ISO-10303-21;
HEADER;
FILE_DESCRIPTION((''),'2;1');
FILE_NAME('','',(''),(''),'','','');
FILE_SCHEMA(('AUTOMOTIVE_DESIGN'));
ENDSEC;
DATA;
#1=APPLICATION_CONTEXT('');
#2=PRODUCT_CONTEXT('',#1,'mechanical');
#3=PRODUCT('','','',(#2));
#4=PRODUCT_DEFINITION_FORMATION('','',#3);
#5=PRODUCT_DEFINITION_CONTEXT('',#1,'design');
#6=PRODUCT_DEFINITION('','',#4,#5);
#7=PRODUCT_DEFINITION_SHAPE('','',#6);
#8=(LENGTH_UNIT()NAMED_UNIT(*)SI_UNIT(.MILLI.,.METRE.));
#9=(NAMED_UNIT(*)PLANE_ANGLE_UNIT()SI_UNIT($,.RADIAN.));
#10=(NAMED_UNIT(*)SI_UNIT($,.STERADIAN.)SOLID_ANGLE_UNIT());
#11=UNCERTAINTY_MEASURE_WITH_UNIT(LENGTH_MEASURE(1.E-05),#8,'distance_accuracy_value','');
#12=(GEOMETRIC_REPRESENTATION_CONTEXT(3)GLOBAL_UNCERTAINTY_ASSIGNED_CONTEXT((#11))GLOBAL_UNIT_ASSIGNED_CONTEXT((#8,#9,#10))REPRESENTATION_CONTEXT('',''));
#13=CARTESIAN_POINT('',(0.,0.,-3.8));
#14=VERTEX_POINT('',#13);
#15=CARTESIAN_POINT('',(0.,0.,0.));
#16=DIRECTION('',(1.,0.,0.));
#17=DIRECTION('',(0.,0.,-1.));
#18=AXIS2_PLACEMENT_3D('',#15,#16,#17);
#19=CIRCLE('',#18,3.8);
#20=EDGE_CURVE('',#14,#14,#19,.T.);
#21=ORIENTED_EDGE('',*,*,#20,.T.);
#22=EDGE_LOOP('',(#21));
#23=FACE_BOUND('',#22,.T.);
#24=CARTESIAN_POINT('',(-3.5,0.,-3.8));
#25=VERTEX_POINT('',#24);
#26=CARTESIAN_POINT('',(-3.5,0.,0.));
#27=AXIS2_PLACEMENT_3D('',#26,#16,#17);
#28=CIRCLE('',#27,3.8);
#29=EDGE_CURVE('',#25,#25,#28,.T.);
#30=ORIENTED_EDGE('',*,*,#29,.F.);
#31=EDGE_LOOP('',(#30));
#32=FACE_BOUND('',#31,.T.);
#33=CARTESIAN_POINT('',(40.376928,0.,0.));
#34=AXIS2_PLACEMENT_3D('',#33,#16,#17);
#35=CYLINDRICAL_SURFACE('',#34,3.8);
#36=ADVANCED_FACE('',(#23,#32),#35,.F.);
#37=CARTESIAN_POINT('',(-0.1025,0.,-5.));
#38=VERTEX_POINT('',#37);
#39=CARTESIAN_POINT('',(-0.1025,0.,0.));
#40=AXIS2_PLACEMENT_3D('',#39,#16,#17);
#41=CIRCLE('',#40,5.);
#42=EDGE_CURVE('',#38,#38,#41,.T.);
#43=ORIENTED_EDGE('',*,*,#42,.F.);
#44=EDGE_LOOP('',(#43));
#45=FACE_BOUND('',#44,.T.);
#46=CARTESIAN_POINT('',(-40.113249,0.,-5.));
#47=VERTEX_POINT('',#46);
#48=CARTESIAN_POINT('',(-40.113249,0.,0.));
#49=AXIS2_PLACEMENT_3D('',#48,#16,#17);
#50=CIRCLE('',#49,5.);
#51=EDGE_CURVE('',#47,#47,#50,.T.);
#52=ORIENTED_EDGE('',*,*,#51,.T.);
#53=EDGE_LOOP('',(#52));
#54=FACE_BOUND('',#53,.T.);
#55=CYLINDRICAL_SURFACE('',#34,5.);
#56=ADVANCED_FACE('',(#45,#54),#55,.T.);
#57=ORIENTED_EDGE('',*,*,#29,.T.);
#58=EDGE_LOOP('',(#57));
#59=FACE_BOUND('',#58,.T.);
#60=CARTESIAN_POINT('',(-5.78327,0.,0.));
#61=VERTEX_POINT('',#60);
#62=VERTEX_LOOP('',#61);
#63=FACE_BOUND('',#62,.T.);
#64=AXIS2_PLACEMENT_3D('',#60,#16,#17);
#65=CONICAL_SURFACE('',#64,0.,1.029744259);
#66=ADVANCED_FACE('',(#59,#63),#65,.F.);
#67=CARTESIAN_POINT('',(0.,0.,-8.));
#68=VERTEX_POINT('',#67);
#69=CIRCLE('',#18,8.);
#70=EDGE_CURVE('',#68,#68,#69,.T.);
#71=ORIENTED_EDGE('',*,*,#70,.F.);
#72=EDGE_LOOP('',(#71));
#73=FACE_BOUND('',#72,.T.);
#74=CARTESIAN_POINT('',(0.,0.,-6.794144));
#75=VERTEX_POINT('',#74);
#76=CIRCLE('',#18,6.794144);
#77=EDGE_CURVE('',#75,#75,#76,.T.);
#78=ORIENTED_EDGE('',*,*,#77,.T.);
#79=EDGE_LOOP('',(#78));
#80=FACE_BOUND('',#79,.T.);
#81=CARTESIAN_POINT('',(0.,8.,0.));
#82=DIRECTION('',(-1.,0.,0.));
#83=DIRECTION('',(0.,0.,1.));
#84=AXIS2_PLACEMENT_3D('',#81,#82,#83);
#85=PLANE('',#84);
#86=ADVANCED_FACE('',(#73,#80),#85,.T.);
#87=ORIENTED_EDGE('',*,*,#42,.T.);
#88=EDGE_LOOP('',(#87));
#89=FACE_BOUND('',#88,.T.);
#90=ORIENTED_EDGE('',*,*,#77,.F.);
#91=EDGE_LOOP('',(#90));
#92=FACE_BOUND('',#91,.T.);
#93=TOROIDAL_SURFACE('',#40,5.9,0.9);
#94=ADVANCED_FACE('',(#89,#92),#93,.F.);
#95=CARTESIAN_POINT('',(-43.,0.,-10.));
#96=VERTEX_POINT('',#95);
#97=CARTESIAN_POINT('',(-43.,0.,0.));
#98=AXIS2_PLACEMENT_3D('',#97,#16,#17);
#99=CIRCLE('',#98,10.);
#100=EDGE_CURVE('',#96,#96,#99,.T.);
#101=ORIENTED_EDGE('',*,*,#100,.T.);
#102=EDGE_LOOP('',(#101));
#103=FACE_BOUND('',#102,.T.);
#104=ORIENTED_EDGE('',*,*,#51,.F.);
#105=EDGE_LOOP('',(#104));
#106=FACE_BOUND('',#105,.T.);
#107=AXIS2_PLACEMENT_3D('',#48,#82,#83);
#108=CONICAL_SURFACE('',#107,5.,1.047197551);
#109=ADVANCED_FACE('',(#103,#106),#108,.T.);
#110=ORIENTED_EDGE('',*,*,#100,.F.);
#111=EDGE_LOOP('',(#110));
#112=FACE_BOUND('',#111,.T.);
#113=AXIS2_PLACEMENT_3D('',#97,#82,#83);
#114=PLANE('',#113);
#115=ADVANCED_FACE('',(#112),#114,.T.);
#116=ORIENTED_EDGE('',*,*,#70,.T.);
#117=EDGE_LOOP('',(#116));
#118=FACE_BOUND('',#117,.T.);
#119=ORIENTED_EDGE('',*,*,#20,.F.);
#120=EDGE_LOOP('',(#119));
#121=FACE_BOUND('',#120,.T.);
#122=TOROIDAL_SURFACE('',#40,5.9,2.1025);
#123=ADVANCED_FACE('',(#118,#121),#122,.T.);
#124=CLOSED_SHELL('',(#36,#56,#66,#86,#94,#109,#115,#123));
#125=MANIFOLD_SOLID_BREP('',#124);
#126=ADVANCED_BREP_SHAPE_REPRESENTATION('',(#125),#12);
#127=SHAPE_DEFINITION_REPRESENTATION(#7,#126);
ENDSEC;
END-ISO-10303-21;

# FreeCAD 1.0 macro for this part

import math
import FreeCAD as App
import Part
import Sketcher
Q = App.Units.Quantity

doc = App.newDocument("Part")
body = doc.addObject("PartDesign::Body", "Body")

# Sketch on XY plane
sketch1 = body.newObject("Sketcher::SketchObject", "Sketch")
sketch1.AttachmentSupport = (doc.getObject("XY_Plane"), [""])
sketch1.MapMode = "FlatFace"
sketch1.addGeometry([
    Part.LineSegment(App.Vector(0, 8, 0), App.Vector(0, 6.8, 0)),  # 0
    Part.ArcOfCircle(Part.Circle(App.Vector(-0.1, 5.9, 0), App.Vector(0, 0, 1), 0.9), math.radians(-90), math.radians(83)),  # 1
    Part.LineSegment(App.Vector(-0.1, 5, 0), App.Vector(-40.1, 5, 0)),  # 2
    Part.LineSegment(App.Vector(-40.1, 5, 0), App.Vector(-43, 10, 0)),  # 3
    Part.LineSegment(App.Vector(-43, 10, 0), App.Vector(-43, 0, 0)),  # 4
    Part.LineSegment(App.Vector(-43, 0, 0), App.Vector(-5.8, 0, 0)),  # 5
    Part.LineSegment(App.Vector(-5.8, 0, 0), App.Vector(-3.5, 3.8, 0)),  # 6
    Part.LineSegment(App.Vector(-3.5, 3.8, 0), App.Vector(0, 3.8, 0)),  # 7
    Part.ArcOfCircle(Part.Circle(App.Vector(-0.1, 5.9, 0), App.Vector(0, 0, 1), 2.1), math.radians(-87), math.radians(87)),  # 8
], False)
sketch1.addConstraint([
    Sketcher.Constraint("Coincident", 0, 2, 1, 2),
    Sketcher.Constraint("Tangent", 1, 1, 2, 1),
    Sketcher.Constraint("Coincident", 2, 2, 3, 1),
    Sketcher.Constraint("Coincident", 3, 2, 4, 1),
    Sketcher.Constraint("Coincident", 4, 2, 5, 1),
    Sketcher.Constraint("Coincident", 5, 2, 6, 1),
    Sketcher.Constraint("Coincident", 6, 2, 7, 1),
    Sketcher.Constraint("Coincident", 7, 2, 8, 1),
    Sketcher.Constraint("Coincident", 8, 2, 0, 1),
    Sketcher.Constraint("Vertical", 0),
    Sketcher.Constraint("Horizontal", 2),
    Sketcher.Constraint("Vertical", 4),
    Sketcher.Constraint("Horizontal", 5),
    Sketcher.Constraint("Horizontal", 7),
    Sketcher.Constraint("Coincident", 8, 3, 1, 3),
    Sketcher.Constraint("PointOnObject", 0, 2, -2),
    Sketcher.Constraint("PointOnObject", 4, 2, -1),
    Sketcher.Constraint("PointOnObject", 7, 2, -2),
    Sketcher.Constraint("Radius", 1, 0.9),
    Sketcher.Constraint("DistanceY", 4, 2, 4, 1, 10.0),
    Sketcher.Constraint("Angle", 3, Q("120 deg")),
    Sketcher.Constraint("Angle", 6, Q("59 deg")),
    Sketcher.Constraint("DistanceX", 7, 1, 7, 2, 3.5),
    Sketcher.Constraint("DistanceY", -1, 1, 1, 1, 5.0),
    Sketcher.Constraint("DistanceX", 3, 2, -1, 1, 43.0),
    Sketcher.Constraint("DistanceY", -1, 1, 8, 2, 8.0),
    Sketcher.Constraint("Radius", 8, 2.1025),
])
revolution = body.newObject("PartDesign::Revolution", "Revolution")
revolution.Profile = sketch1
revolution.ReferenceAxis = (sketch1, ["H_Axis"])
revolution.Angle = 360

doc.recompute()
